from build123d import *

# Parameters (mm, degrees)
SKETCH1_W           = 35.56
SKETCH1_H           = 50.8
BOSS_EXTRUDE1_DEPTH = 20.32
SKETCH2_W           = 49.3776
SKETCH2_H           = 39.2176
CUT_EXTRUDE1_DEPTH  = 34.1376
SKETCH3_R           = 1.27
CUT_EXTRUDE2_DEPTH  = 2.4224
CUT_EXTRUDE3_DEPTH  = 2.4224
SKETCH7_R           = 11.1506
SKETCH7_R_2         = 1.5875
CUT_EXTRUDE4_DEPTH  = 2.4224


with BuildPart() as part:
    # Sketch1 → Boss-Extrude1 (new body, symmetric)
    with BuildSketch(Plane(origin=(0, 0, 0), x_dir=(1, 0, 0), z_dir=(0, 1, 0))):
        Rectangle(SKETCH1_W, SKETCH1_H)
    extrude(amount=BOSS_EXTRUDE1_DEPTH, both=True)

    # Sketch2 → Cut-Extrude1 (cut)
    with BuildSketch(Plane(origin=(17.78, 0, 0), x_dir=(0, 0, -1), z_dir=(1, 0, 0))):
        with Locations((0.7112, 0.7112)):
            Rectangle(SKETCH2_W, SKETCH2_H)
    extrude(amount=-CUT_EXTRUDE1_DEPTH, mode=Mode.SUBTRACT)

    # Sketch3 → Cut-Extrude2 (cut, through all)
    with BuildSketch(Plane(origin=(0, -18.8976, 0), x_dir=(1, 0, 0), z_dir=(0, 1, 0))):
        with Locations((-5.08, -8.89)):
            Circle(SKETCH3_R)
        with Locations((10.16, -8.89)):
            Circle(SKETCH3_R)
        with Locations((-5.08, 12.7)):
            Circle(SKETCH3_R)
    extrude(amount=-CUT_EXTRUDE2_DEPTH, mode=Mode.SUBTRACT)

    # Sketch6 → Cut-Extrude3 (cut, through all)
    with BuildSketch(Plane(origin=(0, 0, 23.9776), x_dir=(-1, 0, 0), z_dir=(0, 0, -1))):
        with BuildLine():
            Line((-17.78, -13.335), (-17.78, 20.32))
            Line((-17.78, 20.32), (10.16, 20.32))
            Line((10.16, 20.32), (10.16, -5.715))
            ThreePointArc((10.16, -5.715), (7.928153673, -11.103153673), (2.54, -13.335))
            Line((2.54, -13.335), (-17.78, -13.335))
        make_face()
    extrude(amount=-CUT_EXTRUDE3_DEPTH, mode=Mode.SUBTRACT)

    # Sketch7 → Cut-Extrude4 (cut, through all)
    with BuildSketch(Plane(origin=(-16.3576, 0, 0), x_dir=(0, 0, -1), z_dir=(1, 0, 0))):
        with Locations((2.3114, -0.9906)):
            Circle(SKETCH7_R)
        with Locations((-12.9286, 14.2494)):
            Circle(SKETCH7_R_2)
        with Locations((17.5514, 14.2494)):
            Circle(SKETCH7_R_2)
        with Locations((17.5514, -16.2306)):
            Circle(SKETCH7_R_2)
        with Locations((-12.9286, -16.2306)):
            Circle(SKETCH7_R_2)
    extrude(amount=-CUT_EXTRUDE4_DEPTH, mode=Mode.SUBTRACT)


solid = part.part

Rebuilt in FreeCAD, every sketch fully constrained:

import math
import FreeCAD as App
import Part
import Sketcher

V = App.Vector
Q = App.Units.Quantity


def add_polygon(sketch, points):
    """Adds a closed chain of lines whose ends are joined by coincident constraints."""
    first, n = sketch.GeometryCount, len(points)
    for a, b in zip(points, points[1:] + points[:1]):
        sketch.addGeometry(Part.LineSegment(App.Vector(*a, 0), App.Vector(*b, 0)), False)
    for i in range(n):
        sketch.addConstraint(Sketcher.Constraint("Coincident", first + i, 2, first + (i + 1) % n, 1))

doc = App.newDocument("Part")
body = doc.addObject("PartDesign::Body", "Body")

# Sketch on XZ plane
sketch1 = doc.addObject("Sketcher::SketchObject", "Sketch")
body.addObject(sketch1)
sketch1.AttachmentSupport = (doc.XZ_Plane, [""])
sketch1.MapMode = "FlatFace"
add_polygon(sketch1, [(-18, -25), (-18, 25), (18, 25), (18, -25)])  # lines 0-3
sketch1.addConstraint(Sketcher.Constraint("Vertical", 0))
sketch1.addConstraint(Sketcher.Constraint("Horizontal", 1))
sketch1.addConstraint(Sketcher.Constraint("Vertical", 2))
sketch1.addConstraint(Sketcher.Constraint("Horizontal", 3))
sketch1.addConstraint(Sketcher.Constraint("Symmetric", 0, 2, 2, 2, -1, 1))
sketch1.addConstraint(Sketcher.Constraint("DistanceY", 0, 1, 0, 2, Q("2 in")))
sketch1.addConstraint(Sketcher.Constraint("DistanceX", 1, 1, 1, 2, Q("1.4 in")))
pad1 = doc.addObject("PartDesign::Pad", "Pad")
body.addObject(pad1)
pad1.Profile = sketch1
pad1.Length = Q("1.6 in")
pad1.Midplane = True

# Sketch on YZ plane
sketch2 = doc.addObject("Sketcher::SketchObject", "Sketch001")
body.addObject(sketch2)
sketch2.AttachmentSupport = (doc.YZ_Plane, [""])
sketch2.MapMode = "FlatFace"
sketch2.AttachmentOffset = App.Placement(V(0, 0, 0.7 * 25.4), App.Rotation())
add_polygon(sketch2, [(20, 24), (-19, 24), (-19, -25), (20, -25)])  # lines 0-3
sketch2.addConstraint(Sketcher.Constraint("Horizontal", 0))
sketch2.addConstraint(Sketcher.Constraint("Vertical", 1))
sketch2.addConstraint(Sketcher.Constraint("Horizontal", 2))
sketch2.addConstraint(Sketcher.Constraint("Vertical", 3))
sketch2.addConstraint(Sketcher.Constraint("DistanceY", 1, 2, -1, 1, Q("1 in")))
sketch2.addConstraint(Sketcher.Constraint("DistanceX", -1, 1, 2, 2, Q("0.8 in")))
sketch2.addConstraint(Sketcher.Constraint("DistanceX", 0, 2, 0, 1, Q("1.544 in")))
sketch2.addConstraint(Sketcher.Constraint("DistanceY", 1, 2, 1, 1, Q("1.944 in")))
pocket1 = doc.addObject("PartDesign::Pocket", "Pocket")
body.addObject(pocket1)
pocket1.Profile = sketch2
pocket1.Length = Q("1.344 in")

# Sketch on XZ plane
sketch3 = doc.addObject("Sketcher::SketchObject", "Sketch002")
body.addObject(sketch3)
sketch3.AttachmentSupport = (doc.XZ_Plane, [""])
sketch3.MapMode = "FlatFace"
sketch3.AttachmentOffset = App.Placement(V(0, 0, 0.744 * 25.4), App.Rotation())
sketch3.addGeometry(Part.Circle(V(-5.1, 8.9, 0), V(0, 0, 1), 1.3), False)
sketch3.addGeometry(Part.Circle(V(10.2, 8.9, 0), V(0, 0, 1), 1.3), False)
sketch3.addGeometry(Part.Circle(V(-5.1, -12.7, 0), V(0, 0, 1), 1.3), False)
sketch3.addConstraint(Sketcher.Constraint("Equal", 0, 1))
sketch3.addConstraint(Sketcher.Constraint("Equal", 1, 2))
sketch3.addConstraint(Sketcher.Constraint("Horizontal", 0, 3, 1, 3))
sketch3.addConstraint(Sketcher.Constraint("Vertical", 0, 3, 2, 3))
sketch3.addConstraint(Sketcher.Constraint("Diameter", 0, Q("0.1 in")))
sketch3.addConstraint(Sketcher.Constraint("DistanceX", 0, 3, -1, 1, Q("0.2 in")))
sketch3.addConstraint(Sketcher.Constraint("DistanceX", -1, 1, 1, 3, Q("0.4 in")))
sketch3.addConstraint(Sketcher.Constraint("DistanceY", 2, 3, -1, 1, Q("0.5 in")))
sketch3.addConstraint(Sketcher.Constraint("DistanceY", -1, 1, 0, 3, Q("0.35 in")))
pocket2 = doc.addObject("PartDesign::Pocket", "Pocket001")
body.addObject(pocket2)
pocket2.Profile = sketch3
pocket2.Type = "ThroughAll"
pocket2.Reversed = True

# Sketch on XY plane
sketch4 = doc.addObject("Sketcher::SketchObject", "Sketch003")
body.addObject(sketch4)
sketch4.AttachmentSupport = (doc.XY_Plane, [""])
sketch4.MapMode = "FlatFace"
sketch4.AttachmentOffset = App.Placement(V(0, 0, 0.944 * 25.4), App.Rotation())
sketch4.addGeometry(Part.LineSegment(V(18, 20, 0), V(18, -13, 0)), False)
sketch4.addGeometry(Part.LineSegment(V(18, -13, 0), V(-3, -13, 0)), False)
sketch4.addGeometry(Part.ArcOfCircle(Part.Circle(V(-3, -6, 0), V(0, 0, 1), 8), math.radians(180), math.radians(270)), False)
sketch4.addGeometry(Part.LineSegment(V(-10, -6, 0), V(-10, 20, 0)), False)
sketch4.addGeometry(Part.LineSegment(V(-10, 20, 0), V(18, 20, 0)), False)
sketch4.addConstraint(Sketcher.Constraint("Coincident", 0, 2, 1, 1))
sketch4.addConstraint(Sketcher.Constraint("Tangent", 1, 2, 2, 2))
sketch4.addConstraint(Sketcher.Constraint("Tangent", 2, 1, 3, 1))
sketch4.addConstraint(Sketcher.Constraint("Coincident", 3, 2, 4, 1))
sketch4.addConstraint(Sketcher.Constraint("Coincident", 4, 2, 0, 1))
sketch4.addConstraint(Sketcher.Constraint("Vertical", 0))
sketch4.addConstraint(Sketcher.Constraint("Horizontal", 1))
sketch4.addConstraint(Sketcher.Constraint("Vertical", 3))
sketch4.addConstraint(Sketcher.Constraint("Horizontal", 4))
sketch4.addConstraint(Sketcher.Constraint("Radius", 2, Q("0.3 in")))
sketch4.addConstraint(Sketcher.Constraint("DistanceX", 1, 2, 1, 1, Q("0.8 in")))
sketch4.addConstraint(Sketcher.Constraint("DistanceX", 2, 3, -1, 1, Q("0.1 in")))
sketch4.addConstraint(Sketcher.Constraint("DistanceY", -1, 1, 3, 2, Q("0.8 in")))
sketch4.addConstraint(Sketcher.Constraint("DistanceY", 0, 2, 0, 1, Q("1.325 in")))
pocket3 = doc.addObject("PartDesign::Pocket", "Pocket002")
body.addObject(pocket3)
pocket3.Profile = sketch4
pocket3.Type = "ThroughAll"
pocket3.Reversed = True

# Sketch on YZ plane
sketch5 = doc.addObject("Sketcher::SketchObject", "Sketch004")
body.addObject(sketch5)
sketch5.AttachmentSupport = (doc.YZ_Plane, [""])
sketch5.MapMode = "FlatFace"
sketch5.AttachmentOffset = App.Placement(V(0, 0, -0.644 * 25.4), App.Rotation())
sketch5.addGeometry(Part.Circle(V(-1, -2.3, 0), V(0, 0, 1), 11.2), False)
sketch5.addGeometry(Part.Circle(V(14.2, 12.9, 0), V(0, 0, 1), 1.6), False)
sketch5.addGeometry(Part.Circle(V(14.2, -17.6, 0), V(0, 0, 1), 1.6), False)
sketch5.addGeometry(Part.Circle(V(-16.2, -17.6, 0), V(0, 0, 1), 1.6), False)
sketch5.addGeometry(Part.Circle(V(-16.2, 12.9, 0), V(0, 0, 1), 1.6), False)
sketch5.addConstraint(Sketcher.Constraint("Equal", 1, 2))
sketch5.addConstraint(Sketcher.Constraint("Equal", 2, 3))
sketch5.addConstraint(Sketcher.Constraint("Equal", 3, 4))
sketch5.addConstraint(Sketcher.Constraint("Horizontal", 2, 3, 3, 3))
sketch5.addConstraint(Sketcher.Constraint("Horizontal", 1, 3, 4, 3))
sketch5.addConstraint(Sketcher.Constraint("Vertical", 1, 3, 2, 3))
sketch5.addConstraint(Sketcher.Constraint("Vertical", 3, 3, 4, 3))
sketch5.addConstraint(Sketcher.Constraint("Diameter", 0, Q("0.878 in")))
sketch5.addConstraint(Sketcher.Constraint("Diameter", 1, Q("0.125 in")))
sketch5.addConstraint(Sketcher.Constraint("DistanceX", 0, 3, 1, 3, Q("0.6 in")))
sketch5.addConstraint(Sketcher.Constraint("DistanceY", 0, 3, 1, 3, Q("0.6 in")))
sketch5.addConstraint(Sketcher.Constraint("DistanceY", 2, 3, 0, 3, Q("0.6 in")))
sketch5.addConstraint(Sketcher.Constraint("DistanceX", 3, 3, 0, 3, Q("0.6 in")))
sketch5.addConstraint(Sketcher.Constraint("DistanceX", 0, 3, -1, 1, Q("0.039 in")))
sketch5.addConstraint(Sketcher.Constraint("DistanceY", 0, 3, -1, 1, Q("0.091 in")))
pocket4 = doc.addObject("PartDesign::Pocket", "Pocket003")
body.addObject(pocket4)
pocket4.Profile = sketch5
pocket4.Type = "ThroughAll"

doc.recompute()
